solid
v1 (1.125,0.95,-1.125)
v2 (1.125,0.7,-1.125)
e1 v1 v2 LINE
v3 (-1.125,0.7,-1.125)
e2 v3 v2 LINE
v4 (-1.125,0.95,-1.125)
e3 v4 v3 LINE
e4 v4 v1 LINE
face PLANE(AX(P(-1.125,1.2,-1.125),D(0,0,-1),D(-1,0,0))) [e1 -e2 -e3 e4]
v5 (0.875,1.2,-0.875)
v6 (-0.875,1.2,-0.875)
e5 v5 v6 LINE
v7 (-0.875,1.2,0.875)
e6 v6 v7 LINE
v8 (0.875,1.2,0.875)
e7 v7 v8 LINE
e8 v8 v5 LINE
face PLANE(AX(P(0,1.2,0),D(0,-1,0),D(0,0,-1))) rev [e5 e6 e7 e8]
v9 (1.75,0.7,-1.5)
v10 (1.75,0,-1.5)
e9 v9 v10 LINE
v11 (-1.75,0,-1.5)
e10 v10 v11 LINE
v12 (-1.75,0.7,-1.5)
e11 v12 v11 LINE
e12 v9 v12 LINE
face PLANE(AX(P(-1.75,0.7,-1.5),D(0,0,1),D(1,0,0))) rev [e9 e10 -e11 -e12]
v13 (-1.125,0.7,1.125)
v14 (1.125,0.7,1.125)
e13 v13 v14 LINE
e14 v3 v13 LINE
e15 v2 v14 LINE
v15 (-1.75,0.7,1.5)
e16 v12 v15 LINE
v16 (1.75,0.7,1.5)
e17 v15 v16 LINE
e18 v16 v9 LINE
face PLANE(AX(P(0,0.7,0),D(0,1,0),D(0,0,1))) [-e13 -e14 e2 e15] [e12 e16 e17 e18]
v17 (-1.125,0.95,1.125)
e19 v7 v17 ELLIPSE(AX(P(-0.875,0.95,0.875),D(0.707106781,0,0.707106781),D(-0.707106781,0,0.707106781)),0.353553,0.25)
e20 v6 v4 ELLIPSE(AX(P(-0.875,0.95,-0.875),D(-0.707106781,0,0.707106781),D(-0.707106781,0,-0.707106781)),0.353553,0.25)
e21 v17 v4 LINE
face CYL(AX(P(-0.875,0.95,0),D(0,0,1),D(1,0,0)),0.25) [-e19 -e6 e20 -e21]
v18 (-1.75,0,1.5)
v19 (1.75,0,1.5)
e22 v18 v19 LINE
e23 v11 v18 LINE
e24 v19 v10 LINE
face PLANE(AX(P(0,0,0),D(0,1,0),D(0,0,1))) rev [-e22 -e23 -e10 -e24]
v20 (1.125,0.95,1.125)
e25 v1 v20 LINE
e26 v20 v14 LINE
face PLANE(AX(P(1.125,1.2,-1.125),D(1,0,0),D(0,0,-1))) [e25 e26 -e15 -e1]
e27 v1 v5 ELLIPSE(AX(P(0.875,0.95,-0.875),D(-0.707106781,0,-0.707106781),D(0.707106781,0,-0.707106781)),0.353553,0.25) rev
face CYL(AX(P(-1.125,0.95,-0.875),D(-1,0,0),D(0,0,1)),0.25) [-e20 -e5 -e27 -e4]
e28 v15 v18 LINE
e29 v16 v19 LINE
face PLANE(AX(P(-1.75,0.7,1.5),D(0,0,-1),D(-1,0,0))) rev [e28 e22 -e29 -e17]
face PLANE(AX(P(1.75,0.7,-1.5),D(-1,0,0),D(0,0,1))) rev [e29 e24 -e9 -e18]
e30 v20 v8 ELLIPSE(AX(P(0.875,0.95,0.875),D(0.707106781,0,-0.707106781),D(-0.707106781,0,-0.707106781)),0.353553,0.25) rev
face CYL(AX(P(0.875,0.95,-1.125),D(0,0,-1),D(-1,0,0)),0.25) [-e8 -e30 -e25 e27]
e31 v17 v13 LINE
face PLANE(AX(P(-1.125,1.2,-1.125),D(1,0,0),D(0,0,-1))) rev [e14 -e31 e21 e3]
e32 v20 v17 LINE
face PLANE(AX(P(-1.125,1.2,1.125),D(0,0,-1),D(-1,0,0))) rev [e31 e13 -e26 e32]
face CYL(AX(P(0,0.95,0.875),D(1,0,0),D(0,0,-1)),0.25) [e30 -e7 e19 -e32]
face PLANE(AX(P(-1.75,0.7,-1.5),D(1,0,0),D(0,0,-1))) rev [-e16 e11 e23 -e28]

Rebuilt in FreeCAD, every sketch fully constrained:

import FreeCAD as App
import Part
import Sketcher

V = App.Vector
Q = App.Units.Quantity


def edges_at(feature, points):
    """Names of the edges that pass closest to the given points."""
    edges = feature.Shape.Edges
    near = lambda p: min(range(len(edges)), key=lambda i: edges[i].distToShape(Part.Vertex(*p))[0])
    return sorted({f"Edge{near(p) + 1}" for p in points})


def add_polygon(sketch, points):
    """Adds a closed chain of lines whose ends are joined by coincident constraints."""
    first, n = sketch.GeometryCount, len(points)
    for a, b in zip(points, points[1:] + points[:1]):
        sketch.addGeometry(Part.LineSegment(App.Vector(*a, 0), App.Vector(*b, 0)), False)
    for i in range(n):
        sketch.addConstraint(Sketcher.Constraint("Coincident", first + i, 2, first + (i + 1) % n, 1))

doc = App.newDocument("Part")
body = doc.addObject("PartDesign::Body", "Body")

# Sketch on XZ plane
sketch1 = doc.addObject("Sketcher::SketchObject", "Sketch")
body.addObject(sketch1)
sketch1.AttachmentSupport = (doc.XZ_Plane, [""])
sketch1.MapMode = "FlatFace"
add_polygon(sketch1, [(-1.8, -1.5), (-1.8, 1.5), (1.8, 1.5), (1.8, -1.5)])  # lines 0-3
sketch1.addConstraint([
    Sketcher.Constraint("Vertical", 0),
    Sketcher.Constraint("Horizontal", 1),
    Sketcher.Constraint("Vertical", 2),
    Sketcher.Constraint("Horizontal", 3),
    Sketcher.Constraint("Symmetric", 0, 2, 2, 2, -1, 1),
    Sketcher.Constraint("DistanceY", 0, 1, 0, 2, Q("3 mm")),
    Sketcher.Constraint("DistanceX", 1, 1, 1, 2, Q("3.5 mm")),
])
pad1 = doc.addObject("PartDesign::Pad", "Pad")
body.addObject(pad1)
pad1.Profile = sketch1
pad1.Length = 0.7
pad1.Reversed = True

# Sketch on XZ plane
sketch2 = doc.addObject("Sketcher::SketchObject", "Sketch001")
body.addObject(sketch2)
sketch2.AttachmentSupport = (doc.XZ_Plane, [""])
sketch2.MapMode = "FlatFace"
sketch2.AttachmentOffset = App.Placement(V(0, 0, -0.7), App.Rotation())
add_polygon(sketch2, [(-1.1, -1.1), (-1.1, 1.1), (1.1, 1.1), (1.1, -1.1)])  # lines 0-3
sketch2.addConstraint([
    Sketcher.Constraint("Vertical", 0),
    Sketcher.Constraint("Horizontal", 1),
    Sketcher.Constraint("Vertical", 2),
    Sketcher.Constraint("Horizontal", 3),
    Sketcher.Constraint("Symmetric", 0, 2, 2, 2, -1, 1),
    Sketcher.Constraint("Equal", 3, 0),
    Sketcher.Constraint("DistanceX", 1, 1, 1, 2, Q("2.25 mm")),
])
pad2 = doc.addObject("PartDesign::Pad", "Pad001")
body.addObject(pad2)
pad2.Profile = sketch2
pad2.Length = 0.5
pad2.Reversed = True
doc.recompute()

fillet = doc.addObject("PartDesign::Fillet", "Fillet")
body.addObject(fillet)
fillet.Base = (pad2, edges_at(pad2, [
    (0, 1.2, -1.125),
    (1.125, 1.2, 0),
    (-1.125, 1.2, 0),
    (0, 1.2, 1.125),
]))
fillet.Radius = 0.25

doc.recompute()
